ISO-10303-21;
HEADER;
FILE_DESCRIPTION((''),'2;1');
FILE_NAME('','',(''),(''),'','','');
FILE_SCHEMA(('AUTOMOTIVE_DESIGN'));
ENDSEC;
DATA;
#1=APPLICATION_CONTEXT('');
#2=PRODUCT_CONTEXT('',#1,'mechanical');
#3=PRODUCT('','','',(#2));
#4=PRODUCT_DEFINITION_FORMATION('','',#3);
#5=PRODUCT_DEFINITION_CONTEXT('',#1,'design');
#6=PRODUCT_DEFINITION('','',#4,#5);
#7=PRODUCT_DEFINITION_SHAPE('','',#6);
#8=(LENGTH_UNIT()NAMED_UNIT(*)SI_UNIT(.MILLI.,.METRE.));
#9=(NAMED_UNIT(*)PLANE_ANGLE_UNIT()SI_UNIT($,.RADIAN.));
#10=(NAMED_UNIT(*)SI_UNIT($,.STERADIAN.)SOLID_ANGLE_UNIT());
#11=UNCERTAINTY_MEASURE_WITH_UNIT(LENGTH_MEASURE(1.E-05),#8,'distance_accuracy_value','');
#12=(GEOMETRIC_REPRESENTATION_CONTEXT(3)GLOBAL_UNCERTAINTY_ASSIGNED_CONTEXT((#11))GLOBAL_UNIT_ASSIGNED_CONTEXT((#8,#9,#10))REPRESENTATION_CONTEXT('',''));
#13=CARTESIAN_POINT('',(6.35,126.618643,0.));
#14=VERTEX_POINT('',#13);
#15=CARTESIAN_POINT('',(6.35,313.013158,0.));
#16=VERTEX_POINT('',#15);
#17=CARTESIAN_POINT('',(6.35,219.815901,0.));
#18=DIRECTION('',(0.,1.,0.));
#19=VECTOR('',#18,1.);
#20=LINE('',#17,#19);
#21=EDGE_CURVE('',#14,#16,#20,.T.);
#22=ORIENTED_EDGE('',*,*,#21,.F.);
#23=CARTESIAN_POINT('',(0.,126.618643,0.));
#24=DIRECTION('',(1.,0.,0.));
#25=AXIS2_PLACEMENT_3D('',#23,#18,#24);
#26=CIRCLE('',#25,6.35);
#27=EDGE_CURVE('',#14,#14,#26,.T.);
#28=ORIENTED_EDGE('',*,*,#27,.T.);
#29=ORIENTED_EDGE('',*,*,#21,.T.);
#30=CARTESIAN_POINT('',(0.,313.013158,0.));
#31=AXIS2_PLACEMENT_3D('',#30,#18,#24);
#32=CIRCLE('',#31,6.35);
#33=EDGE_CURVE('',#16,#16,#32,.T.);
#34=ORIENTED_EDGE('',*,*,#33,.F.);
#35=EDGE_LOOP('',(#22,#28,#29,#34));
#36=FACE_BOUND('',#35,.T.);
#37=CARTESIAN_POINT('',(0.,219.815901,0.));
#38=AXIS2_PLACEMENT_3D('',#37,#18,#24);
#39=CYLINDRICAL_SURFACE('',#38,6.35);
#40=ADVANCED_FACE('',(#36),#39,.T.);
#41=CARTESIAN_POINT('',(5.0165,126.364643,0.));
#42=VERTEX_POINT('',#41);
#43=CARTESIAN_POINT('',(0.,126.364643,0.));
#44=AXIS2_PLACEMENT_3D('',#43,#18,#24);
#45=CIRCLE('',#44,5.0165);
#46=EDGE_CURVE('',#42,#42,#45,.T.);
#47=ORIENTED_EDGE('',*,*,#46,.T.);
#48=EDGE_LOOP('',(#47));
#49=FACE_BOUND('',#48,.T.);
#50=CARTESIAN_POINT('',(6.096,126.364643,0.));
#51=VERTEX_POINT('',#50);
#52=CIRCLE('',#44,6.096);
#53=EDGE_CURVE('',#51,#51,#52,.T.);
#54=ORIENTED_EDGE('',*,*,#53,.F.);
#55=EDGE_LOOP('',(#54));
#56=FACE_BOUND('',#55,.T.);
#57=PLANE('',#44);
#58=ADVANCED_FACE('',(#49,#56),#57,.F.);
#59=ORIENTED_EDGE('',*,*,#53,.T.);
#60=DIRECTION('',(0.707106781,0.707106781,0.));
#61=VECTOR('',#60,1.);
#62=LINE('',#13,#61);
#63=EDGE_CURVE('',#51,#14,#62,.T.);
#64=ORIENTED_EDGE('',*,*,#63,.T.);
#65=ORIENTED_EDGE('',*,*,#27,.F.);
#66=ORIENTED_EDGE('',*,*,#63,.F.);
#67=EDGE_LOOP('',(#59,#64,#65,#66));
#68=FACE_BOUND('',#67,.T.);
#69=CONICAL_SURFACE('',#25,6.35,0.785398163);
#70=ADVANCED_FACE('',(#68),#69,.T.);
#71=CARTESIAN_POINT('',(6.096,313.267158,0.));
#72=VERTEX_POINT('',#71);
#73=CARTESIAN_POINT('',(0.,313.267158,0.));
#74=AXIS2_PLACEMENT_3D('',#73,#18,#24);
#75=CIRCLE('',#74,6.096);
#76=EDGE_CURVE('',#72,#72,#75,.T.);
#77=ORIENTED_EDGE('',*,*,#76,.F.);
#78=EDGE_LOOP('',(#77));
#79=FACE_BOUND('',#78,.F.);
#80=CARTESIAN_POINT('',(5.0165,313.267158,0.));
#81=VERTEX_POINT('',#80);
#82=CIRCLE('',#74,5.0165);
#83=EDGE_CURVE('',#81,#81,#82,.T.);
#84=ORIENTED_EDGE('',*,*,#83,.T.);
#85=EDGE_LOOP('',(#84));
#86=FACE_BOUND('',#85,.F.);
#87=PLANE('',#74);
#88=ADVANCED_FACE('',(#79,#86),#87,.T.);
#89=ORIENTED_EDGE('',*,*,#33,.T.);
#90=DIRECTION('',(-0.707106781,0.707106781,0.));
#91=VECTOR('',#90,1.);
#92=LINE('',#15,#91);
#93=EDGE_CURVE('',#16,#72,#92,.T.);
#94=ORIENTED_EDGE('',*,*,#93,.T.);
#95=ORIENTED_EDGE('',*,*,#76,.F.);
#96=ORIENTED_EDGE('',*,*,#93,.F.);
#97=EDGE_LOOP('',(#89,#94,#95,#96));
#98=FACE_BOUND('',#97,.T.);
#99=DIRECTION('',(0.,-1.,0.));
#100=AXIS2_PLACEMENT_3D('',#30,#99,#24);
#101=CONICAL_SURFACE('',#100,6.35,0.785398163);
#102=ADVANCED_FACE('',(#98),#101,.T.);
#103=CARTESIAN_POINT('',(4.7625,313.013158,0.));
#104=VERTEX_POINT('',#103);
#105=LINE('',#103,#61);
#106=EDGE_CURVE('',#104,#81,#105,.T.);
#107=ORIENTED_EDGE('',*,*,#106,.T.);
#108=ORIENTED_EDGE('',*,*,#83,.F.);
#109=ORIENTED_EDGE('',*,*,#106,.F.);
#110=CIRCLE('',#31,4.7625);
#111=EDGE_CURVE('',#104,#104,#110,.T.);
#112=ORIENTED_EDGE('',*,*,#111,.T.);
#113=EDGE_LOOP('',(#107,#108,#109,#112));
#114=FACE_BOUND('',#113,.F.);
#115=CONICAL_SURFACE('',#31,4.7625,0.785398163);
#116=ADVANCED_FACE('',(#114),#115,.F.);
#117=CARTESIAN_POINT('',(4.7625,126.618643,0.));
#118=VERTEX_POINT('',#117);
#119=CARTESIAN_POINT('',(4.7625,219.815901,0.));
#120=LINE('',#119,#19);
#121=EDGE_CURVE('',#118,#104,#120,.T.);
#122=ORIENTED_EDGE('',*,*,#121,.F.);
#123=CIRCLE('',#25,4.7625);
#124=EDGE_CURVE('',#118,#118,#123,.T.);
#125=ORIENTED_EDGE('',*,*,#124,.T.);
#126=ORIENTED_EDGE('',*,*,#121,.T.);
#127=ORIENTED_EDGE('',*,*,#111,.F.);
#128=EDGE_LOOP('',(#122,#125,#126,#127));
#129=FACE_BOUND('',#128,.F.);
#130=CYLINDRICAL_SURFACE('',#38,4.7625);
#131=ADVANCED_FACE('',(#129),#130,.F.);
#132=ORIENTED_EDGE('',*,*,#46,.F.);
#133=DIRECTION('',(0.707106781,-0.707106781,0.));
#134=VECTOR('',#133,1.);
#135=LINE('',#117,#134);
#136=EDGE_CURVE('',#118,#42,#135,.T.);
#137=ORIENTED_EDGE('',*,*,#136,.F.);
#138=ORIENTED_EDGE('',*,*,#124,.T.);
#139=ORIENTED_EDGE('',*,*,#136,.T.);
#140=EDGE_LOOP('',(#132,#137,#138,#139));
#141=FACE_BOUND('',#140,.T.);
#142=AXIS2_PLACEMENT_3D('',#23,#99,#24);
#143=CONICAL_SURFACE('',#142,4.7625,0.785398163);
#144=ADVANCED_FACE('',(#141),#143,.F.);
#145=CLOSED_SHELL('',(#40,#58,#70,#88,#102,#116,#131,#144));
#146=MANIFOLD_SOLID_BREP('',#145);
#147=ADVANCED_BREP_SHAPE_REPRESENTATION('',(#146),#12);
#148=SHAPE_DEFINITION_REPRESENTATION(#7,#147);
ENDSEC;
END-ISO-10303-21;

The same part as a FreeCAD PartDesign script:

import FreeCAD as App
import Part
import Sketcher
Q = App.Units.Quantity


def edges_at(feature, points):
    """Names of the edges that pass closest to the given points."""
    edges = feature.Shape.Edges
    near = lambda p: min(range(len(edges)), key=lambda i: edges[i].distToShape(Part.Vertex(*p))[0])
    return sorted({f"Edge{near(p) + 1}" for p in points})


def add_polygon(sketch, points):
    """Adds a closed chain of lines whose ends are joined by coincident constraints."""
    first, n = sketch.GeometryCount, len(points)
    for a, b in zip(points, points[1:] + points[:1]):
        sketch.addGeometry(Part.LineSegment(App.Vector(*a, 0), App.Vector(*b, 0)), False)
    for i in range(n):
        sketch.addConstraint(Sketcher.Constraint("Coincident", first + i, 2, first + (i + 1) % n, 1))

doc = App.newDocument("Part")
body = doc.addObject("PartDesign::Body", "Body")

sketch1 = doc.addObject("Sketcher::SketchObject", "Sketch")
body.addObject(sketch1)
sketch1.AttachmentSupport = (doc.XY_Plane, [""])
sketch1.MapMode = "FlatFace"
add_polygon(sketch1, [(4.8, 313.3), (4.8, 126.4), (6.3, 126.4), (6.3, 313.3)])
sketch1.addConstraint([
    Sketcher.Constraint("Vertical", 0),
    Sketcher.Constraint("Horizontal", 1),
    Sketcher.Constraint("Vertical", 2),
    Sketcher.Constraint("Horizontal", 3),
    Sketcher.Constraint("DistanceX", 1, 1, 1, 2, Q("0.0625 in")),
    Sketcher.Constraint("DistanceX", -1, 1, 1, 2, Q("0.25 in")),
    Sketcher.Constraint("DistanceY", 0, 2, 0, 1, 186.902515),
    Sketcher.Constraint("DistanceY", -1, 1, 2, 2, 313.267158),
])
revolution = doc.addObject("PartDesign::Revolution", "Revolution")
body.addObject(revolution)
revolution.Profile = sketch1
revolution.ReferenceAxis = (sketch1, ["V_Axis"])
revolution.Angle = 360
doc.recompute()

chamfer = doc.addObject("PartDesign::Chamfer", "Chamfer")
body.addObject(chamfer)
chamfer.Base = (revolution, edges_at(revolution, [
    (-6.35, 126.365, 0),
    (-6.35, 313.267, 0),
    (-4.763, 313.267, 0),
    (-4.763, 126.365, 0),
]))
chamfer.Size = Q("0.01 in")

doc.recompute()
